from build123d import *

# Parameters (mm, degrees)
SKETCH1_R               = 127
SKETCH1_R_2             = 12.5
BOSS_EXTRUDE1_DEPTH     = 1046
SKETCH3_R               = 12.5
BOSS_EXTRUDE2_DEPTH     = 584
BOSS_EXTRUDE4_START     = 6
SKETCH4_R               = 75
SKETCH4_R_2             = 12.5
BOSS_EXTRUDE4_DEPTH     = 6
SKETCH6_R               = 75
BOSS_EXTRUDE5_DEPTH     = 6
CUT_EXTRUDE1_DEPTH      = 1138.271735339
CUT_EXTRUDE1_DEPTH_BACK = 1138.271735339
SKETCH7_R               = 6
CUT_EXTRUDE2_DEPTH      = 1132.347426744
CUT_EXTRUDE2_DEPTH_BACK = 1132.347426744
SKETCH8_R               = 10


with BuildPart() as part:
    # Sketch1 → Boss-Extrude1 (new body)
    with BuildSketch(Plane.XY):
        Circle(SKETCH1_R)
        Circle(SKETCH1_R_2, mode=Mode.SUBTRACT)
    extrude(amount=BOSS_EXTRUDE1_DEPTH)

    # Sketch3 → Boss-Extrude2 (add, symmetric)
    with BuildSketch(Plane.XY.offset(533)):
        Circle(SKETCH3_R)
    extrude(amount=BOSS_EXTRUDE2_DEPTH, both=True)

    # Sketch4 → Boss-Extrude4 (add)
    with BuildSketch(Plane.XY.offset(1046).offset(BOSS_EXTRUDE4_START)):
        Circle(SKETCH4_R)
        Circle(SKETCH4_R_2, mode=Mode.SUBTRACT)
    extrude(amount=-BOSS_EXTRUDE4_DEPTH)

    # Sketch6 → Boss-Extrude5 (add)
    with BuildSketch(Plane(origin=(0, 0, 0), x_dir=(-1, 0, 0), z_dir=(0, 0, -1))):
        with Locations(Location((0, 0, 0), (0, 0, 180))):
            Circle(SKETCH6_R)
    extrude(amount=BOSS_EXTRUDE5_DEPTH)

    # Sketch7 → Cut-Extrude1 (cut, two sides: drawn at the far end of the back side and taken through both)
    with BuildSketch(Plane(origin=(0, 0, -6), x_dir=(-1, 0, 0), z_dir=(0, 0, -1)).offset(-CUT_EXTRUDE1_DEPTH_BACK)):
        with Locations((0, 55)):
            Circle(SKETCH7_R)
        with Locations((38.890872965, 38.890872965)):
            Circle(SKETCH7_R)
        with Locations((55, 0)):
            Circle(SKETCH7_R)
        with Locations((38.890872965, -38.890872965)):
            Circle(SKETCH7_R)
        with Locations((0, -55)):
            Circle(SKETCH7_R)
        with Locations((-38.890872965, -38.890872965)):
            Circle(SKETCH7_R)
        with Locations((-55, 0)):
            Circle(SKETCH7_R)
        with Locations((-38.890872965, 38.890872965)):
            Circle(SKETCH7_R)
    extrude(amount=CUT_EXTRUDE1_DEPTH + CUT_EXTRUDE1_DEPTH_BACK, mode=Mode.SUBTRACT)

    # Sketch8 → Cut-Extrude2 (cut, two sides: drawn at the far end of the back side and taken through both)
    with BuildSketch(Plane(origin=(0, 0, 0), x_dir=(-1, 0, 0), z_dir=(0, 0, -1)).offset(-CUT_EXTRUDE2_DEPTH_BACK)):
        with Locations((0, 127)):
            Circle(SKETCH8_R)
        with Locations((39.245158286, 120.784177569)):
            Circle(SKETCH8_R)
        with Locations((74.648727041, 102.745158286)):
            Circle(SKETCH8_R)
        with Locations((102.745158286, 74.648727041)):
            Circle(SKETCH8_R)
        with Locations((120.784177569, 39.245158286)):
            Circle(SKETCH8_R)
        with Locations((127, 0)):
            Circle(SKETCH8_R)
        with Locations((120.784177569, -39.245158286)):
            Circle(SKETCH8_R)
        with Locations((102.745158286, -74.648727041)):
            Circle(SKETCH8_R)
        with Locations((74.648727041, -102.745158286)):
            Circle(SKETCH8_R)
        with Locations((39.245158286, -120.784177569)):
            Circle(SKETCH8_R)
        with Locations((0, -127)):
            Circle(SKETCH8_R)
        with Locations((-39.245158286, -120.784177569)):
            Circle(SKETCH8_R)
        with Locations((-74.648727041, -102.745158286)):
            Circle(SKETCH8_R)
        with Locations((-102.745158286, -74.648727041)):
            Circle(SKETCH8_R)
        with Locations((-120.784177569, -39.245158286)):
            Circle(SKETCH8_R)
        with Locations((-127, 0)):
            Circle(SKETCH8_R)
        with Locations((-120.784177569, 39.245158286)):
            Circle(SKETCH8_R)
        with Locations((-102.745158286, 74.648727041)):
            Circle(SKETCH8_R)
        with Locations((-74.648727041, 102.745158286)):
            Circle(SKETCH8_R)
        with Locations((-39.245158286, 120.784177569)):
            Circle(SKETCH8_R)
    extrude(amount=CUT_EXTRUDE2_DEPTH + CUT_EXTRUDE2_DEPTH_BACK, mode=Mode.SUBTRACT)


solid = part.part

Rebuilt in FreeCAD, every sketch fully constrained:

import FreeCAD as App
import Part
import Sketcher

V = App.Vector

doc = App.newDocument("Part")
body = doc.addObject("PartDesign::Body", "Body")

# Sketch on XY plane
sketch1 = doc.addObject("Sketcher::SketchObject", "Sketch")
body.addObject(sketch1)
sketch1.AttachmentSupport = (doc.XY_Plane, [""])
sketch1.MapMode = "FlatFace"
sketch1.addGeometry([
    Part.Circle(V(0, 0, 0), V(0, 0, 1), 127),
    Part.Circle(V(0, 0, 0), V(0, 0, 1), 12),
], False)
sketch1.addConstraint([
    Sketcher.Constraint("Coincident", 0, 3, -1, 1),
    Sketcher.Constraint("Coincident", 1, 3, -1, 1),
    Sketcher.Constraint("Diameter", 0, 254.0),
    Sketcher.Constraint("Diameter", 1, 25.0),
])
pad1 = doc.addObject("PartDesign::Pad", "Pad")
body.addObject(pad1)
pad1.Profile = sketch1
pad1.Length = 1046

# Sketch on XY plane
sketch2 = doc.addObject("Sketcher::SketchObject", "Sketch001")
body.addObject(sketch2)
sketch2.AttachmentSupport = (doc.XY_Plane, [""])
sketch2.MapMode = "FlatFace"
sketch2.AttachmentOffset = App.Placement(V(0, 0, 533), App.Rotation())
sketch2.addGeometry(Part.Circle(V(0, 0, 0), V(0, 0, 1), 12), False)
sketch2.addConstraint([
    Sketcher.Constraint("Coincident", 0, 3, -1, 1),
    Sketcher.Constraint("Diameter", 0, 25.0),
])
pad2 = doc.addObject("PartDesign::Pad", "Pad001")
body.addObject(pad2)
pad2.Profile = sketch2
pad2.Length = 1168
pad2.Midplane = True

# Sketch on XY plane
sketch3 = doc.addObject("Sketcher::SketchObject", "Sketch002")
body.addObject(sketch3)
sketch3.AttachmentSupport = (doc.XY_Plane, [""])
sketch3.MapMode = "FlatFace"
sketch3.AttachmentOffset = App.Placement(V(0, 0, 1052), App.Rotation())
sketch3.addGeometry([
    Part.Circle(V(0, 0, 0), V(0, 0, 1), 75),
    Part.Circle(V(0, 0, 0), V(0, 0, 1), 12),
], False)
sketch3.addConstraint([
    Sketcher.Constraint("Coincident", 0, 3, -1, 1),
    Sketcher.Constraint("Coincident", 1, 3, -1, 1),
    Sketcher.Constraint("Diameter", 0, 150.0),
    Sketcher.Constraint("Diameter", 1, 25.0),
])
pad3 = doc.addObject("PartDesign::Pad", "Pad002")
body.addObject(pad3)
pad3.Profile = sketch3
pad3.Length = 6
pad3.Reversed = True

# Sketch on XY plane
sketch4 = doc.addObject("Sketcher::SketchObject", "Sketch003")
body.addObject(sketch4)
sketch4.AttachmentSupport = (doc.XY_Plane, [""])
sketch4.MapMode = "FlatFace"
sketch4.addGeometry(Part.Circle(V(0, 0, 0), V(0, 0, 1), 75), False)
sketch4.addConstraint([
    Sketcher.Constraint("Coincident", 0, 3, -1, 1),
    Sketcher.Constraint("Diameter", 0, 150.0),
])
pad4 = doc.addObject("PartDesign::Pad", "Pad003")
body.addObject(pad4)
pad4.Profile = sketch4
pad4.Length = 6
pad4.Reversed = True

# Sketch on XY plane
sketch5 = doc.addObject("Sketcher::SketchObject", "Sketch004")
body.addObject(sketch5)
sketch5.AttachmentSupport = (doc.XY_Plane, [""])
sketch5.MapMode = "FlatFace"
sketch5.AttachmentOffset = App.Placement(V(0, 0, -6), App.Rotation())
sketch5.addGeometry([
    Part.Circle(V(0, 55, 0), V(0, 0, 1), 6),  # 0
    Part.Circle(V(-39, 39, 0), V(0, 0, 1), 6),  # 1
    Part.Circle(V(-55, 0, 0), V(0, 0, 1), 6),  # 2
    Part.Circle(V(-39, -39, 0), V(0, 0, 1), 6),  # 3
    Part.Circle(V(0, -55, 0), V(0, 0, 1), 6),  # 4
    Part.Circle(V(39, -39, 0), V(0, 0, 1), 6),  # 5
    Part.Circle(V(55, 0, 0), V(0, 0, 1), 6),  # 6
    Part.Circle(V(39, 39, 0), V(0, 0, 1), 6),  # 7
], False)
sketch5.addConstraint([
    Sketcher.Constraint("Equal", 0, 1),
    Sketcher.Constraint("Equal", 1, 2),
    Sketcher.Constraint("Equal", 2, 3),
    Sketcher.Constraint("Equal", 3, 4),
    Sketcher.Constraint("Equal", 4, 5),
    Sketcher.Constraint("Equal", 5, 6),
    Sketcher.Constraint("Equal", 6, 7),
    Sketcher.Constraint("Symmetric", 0, 3, 4, 3, -1, 1),
    Sketcher.Constraint("Symmetric", 1, 3, 5, 3, -1, 1),
    Sketcher.Constraint("Symmetric", 2, 3, 6, 3, -1, 1),
    Sketcher.Constraint("Symmetric", 3, 3, 7, 3, -1, 1),
    Sketcher.Constraint("Symmetric", 3, 3, 5, 3, -2),
    Sketcher.Constraint("PointOnObject", 0, 3, -2),
    Sketcher.Constraint("PointOnObject", 2, 3, -1),
    Sketcher.Constraint("Diameter", 0, 12.0),
    Sketcher.Constraint("DistanceY", -1, 1, 0, 3, 55.0),
    Sketcher.Constraint("DistanceX", 2, 3, -1, 1, 55.0),
    Sketcher.Constraint("DistanceX", 1, 3, -1, 1, 38.890873),
    Sketcher.Constraint("DistanceY", -1, 1, 1, 3, 38.890873),
])
pocket1 = doc.addObject("PartDesign::Pocket", "Pocket")
body.addObject(pocket1)
pocket1.Profile = sketch5
pocket1.Type = "ThroughAll"
pocket1.Midplane = True

# Sketch on XY plane
sketch6 = doc.addObject("Sketcher::SketchObject", "Sketch005")
body.addObject(sketch6)
sketch6.AttachmentSupport = (doc.XY_Plane, [""])
sketch6.MapMode = "FlatFace"
sketch6.addGeometry([
    Part.Circle(V(0, 127, 0), V(0, 0, 1), 10),  # 0
    Part.Circle(V(-39, 121, 0), V(0, 0, 1), 10),  # 1
    Part.Circle(V(-75, 103, 0), V(0, 0, 1), 10),  # 2
    Part.Circle(V(-103, 75, 0), V(0, 0, 1), 10),  # 3
    Part.Circle(V(-121, 39, 0), V(0, 0, 1), 10),  # 4
    Part.Circle(V(-127, 0, 0), V(0, 0, 1), 10),  # 5
    Part.Circle(V(-121, -39, 0), V(0, 0, 1), 10),  # 6
    Part.Circle(V(-103, -75, 0), V(0, 0, 1), 10),  # 7
    Part.Circle(V(-75, -103, 0), V(0, 0, 1), 10),  # 8
    Part.Circle(V(-39, -121, 0), V(0, 0, 1), 10),  # 9
    Part.Circle(V(0, -127, 0), V(0, 0, 1), 10),  # 10
    Part.Circle(V(39, -121, 0), V(0, 0, 1), 10),  # 11
    Part.Circle(V(75, -103, 0), V(0, 0, 1), 10),  # 12
    Part.Circle(V(103, -75, 0), V(0, 0, 1), 10),  # 13
    Part.Circle(V(121, -39, 0), V(0, 0, 1), 10),  # 14
    Part.Circle(V(127, 0, 0), V(0, 0, 1), 10),  # 15
    Part.Circle(V(121, 39, 0), V(0, 0, 1), 10),  # 16
    Part.Circle(V(103, 75, 0), V(0, 0, 1), 10),  # 17
    Part.Circle(V(75, 103, 0), V(0, 0, 1), 10),  # 18
    Part.Circle(V(39, 121, 0), V(0, 0, 1), 10),  # 19
], False)
sketch6.addConstraint([
    Sketcher.Constraint("Equal", 0, 1),
    Sketcher.Constraint("Equal", 1, 2),
    Sketcher.Constraint("Equal", 2, 3),
    Sketcher.Constraint("Equal", 3, 4),
    Sketcher.Constraint("Equal", 4, 5),
    Sketcher.Constraint("Equal", 5, 6),
    Sketcher.Constraint("Equal", 6, 7),
    Sketcher.Constraint("Equal", 7, 8),
    Sketcher.Constraint("Equal", 8, 9),
    Sketcher.Constraint("Equal", 9, 10),
    Sketcher.Constraint("Equal", 10, 11),
    Sketcher.Constraint("Equal", 11, 12),
    Sketcher.Constraint("Equal", 12, 13),
    Sketcher.Constraint("Equal", 13, 14),
    Sketcher.Constraint("Equal", 14, 15),
    Sketcher.Constraint("Equal", 15, 16),
    Sketcher.Constraint("Equal", 16, 17),
    Sketcher.Constraint("Equal", 17, 18),
    Sketcher.Constraint("Equal", 18, 19),
    Sketcher.Constraint("Symmetric", 0, 3, 10, 3, -1, 1),
    Sketcher.Constraint("Symmetric", 1, 3, 11, 3, -1, 1),
    Sketcher.Constraint("Symmetric", 2, 3, 12, 3, -1, 1),
    Sketcher.Constraint("Symmetric", 3, 3, 13, 3, -1, 1),
    Sketcher.Constraint("Symmetric", 4, 3, 14, 3, -1, 1),
    Sketcher.Constraint("Symmetric", 5, 3, 15, 3, -1, 1),
    Sketcher.Constraint("Symmetric", 6, 3, 16, 3, -1, 1),
    Sketcher.Constraint("Symmetric", 7, 3, 17, 3, -1, 1),
    Sketcher.Constraint("Symmetric", 8, 3, 18, 3, -1, 1),
    Sketcher.Constraint("Symmetric", 9, 3, 19, 3, -1, 1),
    Sketcher.Constraint("Symmetric", 9, 3, 11, 3, -2),
    Sketcher.Constraint("Symmetric", 8, 3, 12, 3, -2),
    Sketcher.Constraint("Symmetric", 7, 3, 13, 3, -2),
    Sketcher.Constraint("Symmetric", 6, 3, 14, 3, -2),
    Sketcher.Constraint("PointOnObject", 0, 3, -2),
    Sketcher.Constraint("PointOnObject", 5, 3, -1),
    Sketcher.Constraint("Diameter", 0, 20.0),
    Sketcher.Constraint("DistanceY", -1, 1, 0, 3, 127.0),
    Sketcher.Constraint("DistanceX", 5, 3, -1, 1, 127.0),
    Sketcher.Constraint("DistanceX", 3, 3, 1, 3, 63.5),
    Sketcher.Constraint("DistanceY", 4, 3, 2, 3, 63.5),
    Sketcher.Constraint("DistanceX", 1, 3, -1, 1, 39.245158),
    Sketcher.Constraint("DistanceY", -1, 1, 2, 3, 102.745158),
    Sketcher.Constraint("DistanceX", 2, 3, 1, 3, 35.403569),
    Sketcher.Constraint("DistanceY", 2, 3, 1, 3, 18.039019),
    Sketcher.Constraint("DistanceY", 3, 3, 2, 3, 28.096431),
    Sketcher.Constraint("DistanceX", 4, 3, 3, 3, 18.039019),
])
pocket2 = doc.addObject("PartDesign::Pocket", "Pocket001")
body.addObject(pocket2)
pocket2.Profile = sketch6
pocket2.Type = "ThroughAll"
pocket2.Midplane = True

doc.recompute()
